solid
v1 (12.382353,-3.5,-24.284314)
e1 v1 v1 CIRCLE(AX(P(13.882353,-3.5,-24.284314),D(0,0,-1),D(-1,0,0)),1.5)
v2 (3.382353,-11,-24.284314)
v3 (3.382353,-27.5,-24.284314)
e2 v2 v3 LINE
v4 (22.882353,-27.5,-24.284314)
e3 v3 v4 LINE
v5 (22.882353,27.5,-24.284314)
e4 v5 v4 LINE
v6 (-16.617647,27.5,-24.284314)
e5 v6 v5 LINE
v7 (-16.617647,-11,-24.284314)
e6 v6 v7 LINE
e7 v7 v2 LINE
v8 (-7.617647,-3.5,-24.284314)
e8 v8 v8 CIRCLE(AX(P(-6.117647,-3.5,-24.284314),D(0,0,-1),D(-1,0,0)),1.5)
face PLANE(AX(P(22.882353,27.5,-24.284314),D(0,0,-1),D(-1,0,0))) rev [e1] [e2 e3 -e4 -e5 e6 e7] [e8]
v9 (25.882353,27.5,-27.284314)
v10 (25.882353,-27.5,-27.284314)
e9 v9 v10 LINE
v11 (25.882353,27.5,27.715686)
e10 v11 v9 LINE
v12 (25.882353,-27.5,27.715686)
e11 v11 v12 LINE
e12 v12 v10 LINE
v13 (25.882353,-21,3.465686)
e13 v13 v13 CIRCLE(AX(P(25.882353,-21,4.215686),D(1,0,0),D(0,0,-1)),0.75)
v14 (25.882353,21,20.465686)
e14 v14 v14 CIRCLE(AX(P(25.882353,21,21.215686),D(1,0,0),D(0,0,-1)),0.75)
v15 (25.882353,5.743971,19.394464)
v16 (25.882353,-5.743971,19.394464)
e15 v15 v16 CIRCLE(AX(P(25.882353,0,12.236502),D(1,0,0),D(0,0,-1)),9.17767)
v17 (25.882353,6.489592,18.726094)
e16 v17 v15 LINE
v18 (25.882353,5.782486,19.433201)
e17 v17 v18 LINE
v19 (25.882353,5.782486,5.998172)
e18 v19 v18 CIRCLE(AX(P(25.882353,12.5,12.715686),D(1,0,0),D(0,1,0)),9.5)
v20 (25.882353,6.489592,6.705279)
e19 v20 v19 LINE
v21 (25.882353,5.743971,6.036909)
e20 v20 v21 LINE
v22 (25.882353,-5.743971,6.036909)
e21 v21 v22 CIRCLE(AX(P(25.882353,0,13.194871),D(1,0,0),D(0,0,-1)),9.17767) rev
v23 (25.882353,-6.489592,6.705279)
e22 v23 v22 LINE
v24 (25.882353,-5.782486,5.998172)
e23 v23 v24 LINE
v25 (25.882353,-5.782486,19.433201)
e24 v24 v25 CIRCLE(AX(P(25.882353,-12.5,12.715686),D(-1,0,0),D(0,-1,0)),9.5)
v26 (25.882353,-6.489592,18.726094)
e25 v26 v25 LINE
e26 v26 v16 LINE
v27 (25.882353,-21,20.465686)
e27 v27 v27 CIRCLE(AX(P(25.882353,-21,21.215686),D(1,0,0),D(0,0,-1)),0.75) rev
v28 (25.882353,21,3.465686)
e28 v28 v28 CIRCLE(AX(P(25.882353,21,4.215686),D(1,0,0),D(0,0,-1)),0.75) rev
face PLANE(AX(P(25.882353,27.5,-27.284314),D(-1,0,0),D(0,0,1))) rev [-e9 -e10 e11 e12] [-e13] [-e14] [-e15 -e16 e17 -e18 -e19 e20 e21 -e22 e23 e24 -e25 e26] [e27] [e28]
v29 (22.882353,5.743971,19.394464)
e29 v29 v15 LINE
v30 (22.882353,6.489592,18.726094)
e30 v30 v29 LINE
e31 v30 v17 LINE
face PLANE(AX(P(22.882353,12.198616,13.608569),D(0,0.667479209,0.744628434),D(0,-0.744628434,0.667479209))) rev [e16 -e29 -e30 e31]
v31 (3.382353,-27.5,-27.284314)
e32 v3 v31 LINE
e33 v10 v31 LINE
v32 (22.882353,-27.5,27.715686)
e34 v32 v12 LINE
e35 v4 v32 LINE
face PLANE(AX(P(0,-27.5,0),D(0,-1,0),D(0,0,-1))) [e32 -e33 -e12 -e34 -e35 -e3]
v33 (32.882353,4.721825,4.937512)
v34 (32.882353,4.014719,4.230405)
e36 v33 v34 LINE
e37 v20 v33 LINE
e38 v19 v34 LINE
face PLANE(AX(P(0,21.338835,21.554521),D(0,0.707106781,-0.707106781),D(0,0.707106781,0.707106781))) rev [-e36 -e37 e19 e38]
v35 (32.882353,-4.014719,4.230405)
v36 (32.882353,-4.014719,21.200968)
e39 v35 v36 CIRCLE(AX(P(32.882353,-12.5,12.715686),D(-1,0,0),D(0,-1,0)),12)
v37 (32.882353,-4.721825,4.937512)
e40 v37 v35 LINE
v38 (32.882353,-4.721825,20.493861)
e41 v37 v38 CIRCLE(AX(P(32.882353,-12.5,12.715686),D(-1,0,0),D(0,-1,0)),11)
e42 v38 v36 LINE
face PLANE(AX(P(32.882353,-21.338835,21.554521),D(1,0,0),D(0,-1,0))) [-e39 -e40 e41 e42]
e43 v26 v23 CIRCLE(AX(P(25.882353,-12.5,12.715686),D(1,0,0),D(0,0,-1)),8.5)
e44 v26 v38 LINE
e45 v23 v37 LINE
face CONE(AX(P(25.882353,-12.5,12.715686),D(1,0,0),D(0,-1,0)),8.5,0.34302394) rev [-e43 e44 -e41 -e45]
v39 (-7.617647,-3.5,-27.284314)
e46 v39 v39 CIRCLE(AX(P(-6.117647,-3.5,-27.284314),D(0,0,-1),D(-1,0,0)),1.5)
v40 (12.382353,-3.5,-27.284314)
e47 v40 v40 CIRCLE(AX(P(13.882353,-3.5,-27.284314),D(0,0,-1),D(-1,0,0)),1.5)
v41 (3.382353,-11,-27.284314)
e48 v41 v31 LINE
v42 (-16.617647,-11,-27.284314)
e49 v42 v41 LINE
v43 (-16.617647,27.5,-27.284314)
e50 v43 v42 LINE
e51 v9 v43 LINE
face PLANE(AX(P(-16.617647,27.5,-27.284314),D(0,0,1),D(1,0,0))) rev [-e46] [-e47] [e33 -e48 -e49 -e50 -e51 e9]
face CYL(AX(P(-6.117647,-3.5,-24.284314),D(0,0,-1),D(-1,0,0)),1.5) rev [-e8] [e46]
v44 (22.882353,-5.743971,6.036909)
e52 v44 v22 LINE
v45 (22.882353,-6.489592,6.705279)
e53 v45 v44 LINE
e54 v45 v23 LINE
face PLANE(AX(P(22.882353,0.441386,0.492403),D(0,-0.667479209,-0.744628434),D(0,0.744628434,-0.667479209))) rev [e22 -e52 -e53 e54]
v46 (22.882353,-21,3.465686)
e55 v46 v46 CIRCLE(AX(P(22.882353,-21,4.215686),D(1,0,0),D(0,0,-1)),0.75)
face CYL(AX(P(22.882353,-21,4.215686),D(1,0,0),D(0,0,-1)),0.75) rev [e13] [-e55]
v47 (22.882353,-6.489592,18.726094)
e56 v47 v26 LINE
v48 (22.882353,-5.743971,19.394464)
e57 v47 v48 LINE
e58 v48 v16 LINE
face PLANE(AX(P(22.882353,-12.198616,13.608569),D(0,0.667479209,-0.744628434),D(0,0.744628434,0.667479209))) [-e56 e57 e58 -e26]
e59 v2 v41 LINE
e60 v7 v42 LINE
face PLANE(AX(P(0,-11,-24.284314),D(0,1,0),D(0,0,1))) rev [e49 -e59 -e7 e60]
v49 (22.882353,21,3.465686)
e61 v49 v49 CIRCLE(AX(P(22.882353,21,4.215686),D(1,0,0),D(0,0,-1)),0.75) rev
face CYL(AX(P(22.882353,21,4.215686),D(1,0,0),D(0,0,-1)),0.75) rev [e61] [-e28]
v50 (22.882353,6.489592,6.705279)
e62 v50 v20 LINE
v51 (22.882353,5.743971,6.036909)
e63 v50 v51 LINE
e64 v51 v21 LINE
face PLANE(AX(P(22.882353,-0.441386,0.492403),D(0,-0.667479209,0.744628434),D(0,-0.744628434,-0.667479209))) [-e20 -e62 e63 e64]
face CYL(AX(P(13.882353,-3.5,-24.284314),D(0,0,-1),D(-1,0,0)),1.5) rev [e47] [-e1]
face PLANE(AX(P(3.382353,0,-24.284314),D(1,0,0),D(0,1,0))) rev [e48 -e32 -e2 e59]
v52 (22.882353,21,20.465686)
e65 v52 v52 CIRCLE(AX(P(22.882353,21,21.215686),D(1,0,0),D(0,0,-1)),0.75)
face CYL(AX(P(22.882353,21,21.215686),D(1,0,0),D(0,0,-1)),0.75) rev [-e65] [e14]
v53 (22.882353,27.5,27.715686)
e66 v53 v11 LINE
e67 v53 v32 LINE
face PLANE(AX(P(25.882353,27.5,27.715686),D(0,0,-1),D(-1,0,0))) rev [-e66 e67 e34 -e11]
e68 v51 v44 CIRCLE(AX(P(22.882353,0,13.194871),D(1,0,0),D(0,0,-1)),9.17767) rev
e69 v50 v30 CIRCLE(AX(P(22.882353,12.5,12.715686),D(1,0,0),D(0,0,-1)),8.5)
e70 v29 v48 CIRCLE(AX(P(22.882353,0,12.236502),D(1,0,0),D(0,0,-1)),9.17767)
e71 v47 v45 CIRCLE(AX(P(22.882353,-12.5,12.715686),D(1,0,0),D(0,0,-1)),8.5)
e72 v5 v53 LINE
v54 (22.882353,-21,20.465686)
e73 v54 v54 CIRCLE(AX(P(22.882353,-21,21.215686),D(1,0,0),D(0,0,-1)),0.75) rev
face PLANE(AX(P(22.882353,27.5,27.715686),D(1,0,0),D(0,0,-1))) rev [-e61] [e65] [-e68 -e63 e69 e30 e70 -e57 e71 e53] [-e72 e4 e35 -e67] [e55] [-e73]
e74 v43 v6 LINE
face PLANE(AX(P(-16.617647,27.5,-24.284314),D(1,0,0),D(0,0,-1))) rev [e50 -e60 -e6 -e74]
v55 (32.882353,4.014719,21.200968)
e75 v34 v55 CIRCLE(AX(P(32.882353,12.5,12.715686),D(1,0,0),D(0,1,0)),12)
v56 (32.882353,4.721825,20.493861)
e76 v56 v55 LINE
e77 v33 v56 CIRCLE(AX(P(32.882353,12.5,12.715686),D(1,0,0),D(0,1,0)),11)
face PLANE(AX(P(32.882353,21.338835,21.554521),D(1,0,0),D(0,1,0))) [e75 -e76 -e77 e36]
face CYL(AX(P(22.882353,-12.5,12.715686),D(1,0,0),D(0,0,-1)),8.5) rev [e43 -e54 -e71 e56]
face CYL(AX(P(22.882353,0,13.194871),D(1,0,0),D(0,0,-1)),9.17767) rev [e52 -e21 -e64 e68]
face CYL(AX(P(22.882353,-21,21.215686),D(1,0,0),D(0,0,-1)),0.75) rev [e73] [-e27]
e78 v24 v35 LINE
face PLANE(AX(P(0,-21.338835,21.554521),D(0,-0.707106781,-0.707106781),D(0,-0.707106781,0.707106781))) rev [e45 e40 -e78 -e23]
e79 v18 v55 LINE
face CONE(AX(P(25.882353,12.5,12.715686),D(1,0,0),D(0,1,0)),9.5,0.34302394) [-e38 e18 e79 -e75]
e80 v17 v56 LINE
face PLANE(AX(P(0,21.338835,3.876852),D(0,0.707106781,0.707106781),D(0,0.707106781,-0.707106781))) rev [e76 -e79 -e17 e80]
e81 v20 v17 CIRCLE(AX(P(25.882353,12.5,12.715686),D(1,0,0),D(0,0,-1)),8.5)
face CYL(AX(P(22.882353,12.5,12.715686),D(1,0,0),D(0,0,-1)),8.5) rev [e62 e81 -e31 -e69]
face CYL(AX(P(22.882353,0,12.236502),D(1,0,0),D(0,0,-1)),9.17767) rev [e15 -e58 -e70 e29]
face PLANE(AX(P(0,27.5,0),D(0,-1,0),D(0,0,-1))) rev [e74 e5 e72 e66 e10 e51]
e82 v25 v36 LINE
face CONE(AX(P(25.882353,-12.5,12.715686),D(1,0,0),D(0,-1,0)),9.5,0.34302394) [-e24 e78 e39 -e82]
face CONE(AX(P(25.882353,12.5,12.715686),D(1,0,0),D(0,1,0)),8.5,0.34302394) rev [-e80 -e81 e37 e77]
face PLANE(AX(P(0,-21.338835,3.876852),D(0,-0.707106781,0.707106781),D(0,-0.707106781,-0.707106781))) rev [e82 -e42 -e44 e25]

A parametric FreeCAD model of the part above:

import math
import FreeCAD as App
import Part
import Sketcher

V = App.Vector

doc = App.newDocument("Part")
params = doc.addObject("Spreadsheet::Sheet", "Params")
for row, (alias, value) in enumerate([
    ("sketch1_width", "3 mm"),
    ("sketch1_height", "52 mm"),
    ("sketch1_width2", "42.5 mm"),
    ("pad1_length", "55 mm"),
    ("sketch2_diameter", "1.5 mm"),
    ("sketch2_radius", "8.5 mm"),
    ("pocket1_length", "3 mm"),
    ("sketch3_width", "7 mm"),
    ("sketch3_height", "1 mm"),
    ("revolution_angle", "135 deg"),
    ("sketch4_width", "7 mm"),
    ("sketch4_height", "1 mm"),
    ("revolution2_angle", "135 deg"),
    ("sketch5_width", "7 mm"),
    ("sketch5_height", "1 mm"),
    ("revolution3_angle", "135 deg"),
    ("sketch6_diameter", "3 mm"),
    ("sketch6_width", "20 mm"),
    ("sketch6_height", "16.5 mm"),
    ("pocket2_length", "3 mm"),
], start=1):
    params.set(f"A{row}", alias)
    params.set(f"B{row}", "=" + value)
    params.setAlias(f"B{row}", alias)

body = doc.addObject("PartDesign::Body", "Body")

# Sketch on XZ plane
sketch1 = doc.addObject("Sketcher::SketchObject", "Sketch")
body.addObject(sketch1)
sketch1.AttachmentSupport = (doc.XZ_Plane, [""])
sketch1.MapMode = "FlatFace"
sketch1.addGeometry([
    Part.LineSegment(V(25.9, -27.3, 0), V(-16.6, -27.3, 0)),  # 0
    Part.LineSegment(V(-16.6, -27.3, 0), V(-16.6, -24.3, 0)),  # 1
    Part.LineSegment(V(-16.6, -24.3, 0), V(22.9, -24.3, 0)),  # 2
    Part.LineSegment(V(22.9, -24.3, 0), V(22.9, 27.7, 0)),  # 3
    Part.LineSegment(V(22.9, 27.7, 0), V(25.9, 27.7, 0)),  # 4
    Part.LineSegment(V(25.9, 27.7, 0), V(25.9, -27.3, 0)),  # 5
], False)
sketch1.addConstraint([
    Sketcher.Constraint("Coincident", 0, 2, 1, 1),
    Sketcher.Constraint("Coincident", 1, 2, 2, 1),
    Sketcher.Constraint("Coincident", 2, 2, 3, 1),
    Sketcher.Constraint("Coincident", 3, 2, 4, 1),
    Sketcher.Constraint("Coincident", 4, 2, 5, 1),
    Sketcher.Constraint("Coincident", 5, 2, 0, 1),
    Sketcher.Constraint("Horizontal", 0),
    Sketcher.Constraint("Vertical", 1),
    Sketcher.Constraint("Horizontal", 2),
    Sketcher.Constraint("Vertical", 3),
    Sketcher.Constraint("Horizontal", 4),
    Sketcher.Constraint("Vertical", 5),
    Sketcher.Constraint("Equal", 4, 1),
    Sketcher.Constraint("DistanceX", 4, 1, 4, 2, 3.0),
    Sketcher.Constraint("DistanceY", 3, 1, 3, 2, 52.0),
    Sketcher.Constraint("DistanceX", 0, 2, 0, 1, 42.5),
    Sketcher.Constraint("DistanceX", 0, 2, -1, 1, 16.617647),
    Sketcher.Constraint("DistanceY", 0, 2, -1, 1, 27.284314),
])
sketch1.setExpression("Constraints[13]", "Params.sketch1_width")
sketch1.setExpression("Constraints[14]", "Params.sketch1_height")
sketch1.setExpression("Constraints[15]", "Params.sketch1_width2")
pad1 = doc.addObject("PartDesign::Pad", "Pad")
body.addObject(pad1)
pad1.Profile = sketch1
pad1.setExpression("Length", "Params.pad1_length")
pad1.Midplane = True

# Sketch on YZ plane
sketch2 = doc.addObject("Sketcher::SketchObject", "Sketch001")
body.addObject(sketch2)
sketch2.AttachmentSupport = (doc.YZ_Plane, [""])
sketch2.MapMode = "FlatFace"
sketch2.AttachmentOffset = App.Placement(V(0, 0, 25.882353), App.Rotation())
sketch2.addGeometry([
    Part.ArcOfCircle(Part.Circle(V(0, 12.2, 0), V(0, 0, 1), 9.2), math.radians(51), math.radians(129)),  # 0
    Part.LineSegment(V(-5.7, 19.4, 0), V(-6.5, 18.7, 0)),  # 1
    Part.ArcOfCircle(Part.Circle(V(-12.5, 12.7, 0), V(0, 0, 1), 8.5), math.radians(45), math.radians(315)),  # 2
    Part.LineSegment(V(-6.5, 6.7, 0), V(-5.7, 6, 0)),  # 3
    Part.ArcOfCircle(Part.Circle(V(0, 13.2, 0), V(0, 0, 1), 9.2), math.radians(-129), math.radians(-51)),  # 4
    Part.LineSegment(V(5.7, 6, 0), V(6.5, 6.7, 0)),  # 5
    Part.ArcOfCircle(Part.Circle(V(12.5, 12.7, 0), V(0, 0, 1), 8.5), math.radians(-135), math.radians(135)),  # 6
    Part.LineSegment(V(6.5, 18.7, 0), V(5.7, 19.4, 0)),  # 7
    Part.Circle(V(-21, 4.2, 0), V(0, 0, 1), 0.8),  # 8
    Part.Circle(V(-21, 21.2, 0), V(0, 0, 1), 0.8),  # 9
    Part.Circle(V(21, 4.2, 0), V(0, 0, 1), 0.8),  # 10
    Part.Circle(V(21, 21.2, 0), V(0, 0, 1), 0.8),  # 11
], False)
sketch2.addConstraint([
    Sketcher.Constraint("Coincident", 0, 2, 1, 1),
    Sketcher.Constraint("Coincident", 1, 2, 2, 1),
    Sketcher.Constraint("Coincident", 2, 2, 3, 1),
    Sketcher.Constraint("Coincident", 3, 2, 4, 1),
    Sketcher.Constraint("Coincident", 4, 2, 5, 1),
    Sketcher.Constraint("Coincident", 5, 2, 6, 1),
    Sketcher.Constraint("Coincident", 6, 2, 7, 1),
    Sketcher.Constraint("Coincident", 7, 2, 0, 1),
    Sketcher.Constraint("Equal", 0, 4),
    Sketcher.Constraint("Equal", 2, 6),
    Sketcher.Constraint("Equal", 8, 9),
    Sketcher.Constraint("Equal", 9, 10),
    Sketcher.Constraint("Equal", 10, 11),
    Sketcher.Constraint("Symmetric", 2, 3, 6, 3, -2),
    Sketcher.Constraint("Symmetric", 8, 3, 10, 3, -2),
    Sketcher.Constraint("Symmetric", 9, 3, 11, 3, -2),
    Sketcher.Constraint("Symmetric", 3, 2, 4, 2, -2),
    Sketcher.Constraint("Symmetric", 0, 2, 7, 2, -2),
    Sketcher.Constraint("Parallel", 1, 5),
    Sketcher.Constraint("Parallel", 3, 7),
    Sketcher.Constraint("Horizontal", 2, 2, 5, 2),
    Sketcher.Constraint("Vertical", 8, 3, 9, 3),
    Sketcher.Constraint("Vertical", 1, 2, 2, 2),
    Sketcher.Constraint("Vertical", 0, 2, 3, 2),
    Sketcher.Constraint("Diameter", 8, 1.5),
    Sketcher.Constraint("Radius", 2, 8.5),
    Sketcher.Constraint("DistanceX", 8, 3, -1, 1, 21.0),
    Sketcher.Constraint("DistanceX", 2, 3, 6, 3, 25.0),
    Sketcher.Constraint("DistanceY", 8, 3, 9, 3, 17.0),
    Sketcher.Constraint("DistanceY", 8, 3, 2, 3, 8.5),
    Sketcher.Constraint("Radius", 0, 9.17767),
    Sketcher.Constraint("DistanceY", -1, 1, 0, 3, 12.236502),
    Sketcher.Constraint("DistanceY", -1, 1, 4, 3, 13.194871),
    Sketcher.Constraint("DistanceX", 0, 2, -1, 1, 5.743971),
    Sketcher.Constraint("DistanceY", -1, 1, 2, 2, 6.705279),
])
sketch2.setExpression("Constraints[24]", "Params.sketch2_diameter")
sketch2.setExpression("Constraints[25]", "Params.sketch2_radius")
pocket1 = doc.addObject("PartDesign::Pocket", "Pocket")
body.addObject(pocket1)
pocket1.Profile = sketch2
pocket1.setExpression("Length", "Params.pocket1_length")

# Sketch on XY plane
sketch3 = doc.addObject("Sketcher::SketchObject", "Sketch002")
body.addObject(sketch3)
sketch3.AttachmentSupport = (doc.XY_Plane, [""])
sketch3.MapMode = "FlatFace"
sketch3.AttachmentOffset = App.Placement(V(0, 0, 12.715686), App.Rotation())
sketch3.addGeometry([
    Part.LineSegment(V(32.9, 24.5, 0), V(25.9, 22, 0)),
    Part.LineSegment(V(25.9, 22, 0), V(25.9, 21, 0)),
    Part.LineSegment(V(25.9, 21, 0), V(32.9, 23.5, 0)),
    Part.LineSegment(V(32.9, 23.5, 0), V(32.9, 24.5, 0)),
], False)
sketch3.addGeometry(Part.LineSegment(V(32.9, 12.5, 0), V(25.9, 12.5, 0)), True)  # axis
sketch3.addConstraint([
    Sketcher.Constraint("Coincident", 0, 2, 1, 1),
    Sketcher.Constraint("Coincident", 1, 2, 2, 1),
    Sketcher.Constraint("Coincident", 2, 2, 3, 1),
    Sketcher.Constraint("Coincident", 3, 2, 0, 1),
    Sketcher.Constraint("Vertical", 1),
    Sketcher.Constraint("Vertical", 3),
    Sketcher.Constraint("Horizontal", 4),
    Sketcher.Constraint("Parallel", 0, 2),
    Sketcher.Constraint("Vertical", 3, 2, 4, 1),
    Sketcher.Constraint("Vertical", 1, 2, 4, 2),
    Sketcher.Constraint("DistanceX", 4, 2, 4, 1, 7.0),
    Sketcher.Constraint("DistanceY", 1, 2, 1, 1, 1.0),
    Sketcher.Constraint("DistanceY", -1, 1, 0, 2, 22.0),
    Sketcher.Constraint("DistanceY", 4, 1, 2, 2, 11.0),
    Sketcher.Constraint("DistanceY", -1, 1, 2, 2, 23.5),
    Sketcher.Constraint("DistanceX", -1, 1, 0, 2, 25.882353),
])
sketch3.setExpression("Constraints[10]", "Params.sketch3_width")
sketch3.setExpression("Constraints[11]", "Params.sketch3_height")
revolution = doc.addObject("PartDesign::Revolution", "Revolution")
body.addObject(revolution)
revolution.Profile = sketch3
revolution.ReferenceAxis = (sketch3, ["Axis0"])
revolution.setExpression("Angle", "Params.revolution_angle")
doc.recompute()

mirrored = doc.addObject("PartDesign::Mirrored", "Mirrored")
body.addObject(mirrored)
mirrored.Originals = [revolution]
mirrored.MirrorPlane = (doc.XZ_Plane, [""])
body.Tip = mirrored
doc.recompute()

datumplane = doc.addObject("PartDesign::Plane", "DatumPlane")
body.addObject(datumplane)
datumplane.AttachmentSupport = (doc.XY_Plane, [""])
datumplane.MapMode = "FlatFace"
datumplane.AttachmentOffset = App.Placement(V(0, 0, 12.715686), App.Rotation())
mirrored2 = doc.addObject("PartDesign::Mirrored", "Mirrored001")
body.addObject(mirrored2)
mirrored2.Originals = [revolution]
mirrored2.MirrorPlane = (datumplane, [""])
body.Tip = mirrored2

# Sketch on XY plane
sketch4 = doc.addObject("Sketcher::SketchObject", "Sketch003")
body.addObject(sketch4)
sketch4.AttachmentSupport = (doc.XY_Plane, [""])
sketch4.MapMode = "FlatFace"
sketch4.AttachmentOffset = App.Placement(V(0, 0, 12.715686), App.Rotation())
sketch4.addGeometry([
    Part.LineSegment(V(32.9, -24.5, 0), V(25.9, -22, 0)),
    Part.LineSegment(V(25.9, -22, 0), V(25.9, -21, 0)),
    Part.LineSegment(V(25.9, -21, 0), V(32.9, -23.5, 0)),
    Part.LineSegment(V(32.9, -23.5, 0), V(32.9, -24.5, 0)),
], False)
sketch4.addGeometry(Part.LineSegment(V(32.9, -12.5, 0), V(25.9, -12.5, 0)), True)  # axis
sketch4.addConstraint([
    Sketcher.Constraint("Coincident", 0, 2, 1, 1),
    Sketcher.Constraint("Coincident", 1, 2, 2, 1),
    Sketcher.Constraint("Coincident", 2, 2, 3, 1),
    Sketcher.Constraint("Coincident", 3, 2, 0, 1),
    Sketcher.Constraint("Vertical", 1),
    Sketcher.Constraint("Vertical", 3),
    Sketcher.Constraint("Horizontal", 4),
    Sketcher.Constraint("Parallel", 0, 2),
    Sketcher.Constraint("Vertical", 3, 2, 4, 1),
    Sketcher.Constraint("Vertical", 1, 2, 4, 2),
    Sketcher.Constraint("DistanceX", 4, 2, 4, 1, 7.0),
    Sketcher.Constraint("DistanceY", 1, 1, 1, 2, 1.0),
    Sketcher.Constraint("DistanceY", 0, 2, -1, 1, 22.0),
    Sketcher.Constraint("DistanceY", 2, 2, 4, 1, 11.0),
    Sketcher.Constraint("DistanceY", 2, 2, -1, 1, 23.5),
    Sketcher.Constraint("DistanceX", -1, 1, 0, 2, 25.882353),
])
sketch4.setExpression("Constraints[10]", "Params.sketch4_width")
sketch4.setExpression("Constraints[11]", "Params.sketch4_height")
revolution2 = doc.addObject("PartDesign::Revolution", "Revolution001")
body.addObject(revolution2)
revolution2.Profile = sketch4
revolution2.ReferenceAxis = (sketch4, ["Axis0"])
revolution2.setExpression("Angle", "Params.revolution2_angle")

# Sketch on XY plane
sketch5 = doc.addObject("Sketcher::SketchObject", "Sketch004")
body.addObject(sketch5)
sketch5.AttachmentSupport = (doc.XY_Plane, [""])
sketch5.MapMode = "FlatFace"
sketch5.AttachmentOffset = App.Placement(V(0, 0, 12.715686), App.Rotation())
sketch5.addGeometry([
    Part.LineSegment(V(25.9, 22, 0), V(32.9, 24.5, 0)),
    Part.LineSegment(V(32.9, 24.5, 0), V(32.9, 23.5, 0)),
    Part.LineSegment(V(32.9, 23.5, 0), V(25.9, 21, 0)),
    Part.LineSegment(V(25.9, 21, 0), V(25.9, 22, 0)),
], False)
sketch5.addGeometry(Part.LineSegment(V(25.9, 12.5, 0), V(32.9, 12.5, 0)), True)  # axis
sketch5.addConstraint([
    Sketcher.Constraint("Coincident", 0, 2, 1, 1),
    Sketcher.Constraint("Coincident", 1, 2, 2, 1),
    Sketcher.Constraint("Coincident", 2, 2, 3, 1),
    Sketcher.Constraint("Coincident", 3, 2, 0, 1),
    Sketcher.Constraint("Vertical", 1),
    Sketcher.Constraint("Vertical", 3),
    Sketcher.Constraint("Horizontal", 4),
    Sketcher.Constraint("Parallel", 0, 2),
    Sketcher.Constraint("Vertical", 3, 2, 4, 1),
    Sketcher.Constraint("Vertical", 1, 2, 4, 2),
    Sketcher.Constraint("DistanceX", 4, 1, 4, 2, 7.0),
    Sketcher.Constraint("DistanceY", 1, 2, 1, 1, 1.0),
    Sketcher.Constraint("DistanceY", -1, 1, 2, 2, 21.0),
    Sketcher.Constraint("DistanceY", 4, 1, 1, 2, 11.0),
    Sketcher.Constraint("DistanceY", -1, 1, 0, 2, 24.5),
    Sketcher.Constraint("DistanceX", -1, 1, 0, 2, 32.882353),
])
sketch5.setExpression("Constraints[10]", "Params.sketch5_width")
sketch5.setExpression("Constraints[11]", "Params.sketch5_height")
revolution3 = doc.addObject("PartDesign::Revolution", "Revolution002")
body.addObject(revolution3)
revolution3.Profile = sketch5
revolution3.ReferenceAxis = (sketch5, ["Axis0"])
revolution3.setExpression("Angle", "Params.revolution3_angle")

# Sketch on XY plane
sketch6 = doc.addObject("Sketcher::SketchObject", "Sketch005")
body.addObject(sketch6)
sketch6.AttachmentSupport = (doc.XY_Plane, [""])
sketch6.MapMode = "FlatFace"
sketch6.AttachmentOffset = App.Placement(V(0, 0, -27.284314), App.Rotation())
sketch6.addGeometry([
    Part.Circle(V(-6.1, -3.5, 0), V(0, 0, 1), 1.5),  # 0
    Part.Circle(V(13.9, -3.5, 0), V(0, 0, 1), 1.5),  # 1
    Part.LineSegment(V(3.4, -11, 0), V(3.4, -27.5, 0)),  # 2
    Part.LineSegment(V(3.4, -27.5, 0), V(-16.6, -27.5, 0)),  # 3
    Part.LineSegment(V(-16.6, -27.5, 0), V(-16.6, -11, 0)),  # 4
    Part.LineSegment(V(-16.6, -11, 0), V(3.4, -11, 0)),  # 5
], False)
sketch6.addConstraint([
    Sketcher.Constraint("Coincident", 2, 2, 3, 1),
    Sketcher.Constraint("Coincident", 3, 2, 4, 1),
    Sketcher.Constraint("Coincident", 4, 2, 5, 1),
    Sketcher.Constraint("Coincident", 5, 2, 2, 1),
    Sketcher.Constraint("Vertical", 2),
    Sketcher.Constraint("Horizontal", 3),
    Sketcher.Constraint("Vertical", 4),
    Sketcher.Constraint("Horizontal", 5),
    Sketcher.Constraint("Equal", 0, 1),
    Sketcher.Constraint("Horizontal", 0, 3, 1, 3),
    Sketcher.Constraint("Diameter", 0, 3.0),
    Sketcher.Constraint("DistanceX", 3, 2, 3, 1, 20.0),
    Sketcher.Constraint("DistanceY", 2, 2, 2, 1, 16.5),
    Sketcher.Constraint("DistanceY", 4, 2, -1, 1, 11.0),
    Sketcher.Constraint("DistanceX", 0, 3, 1, 3, 20.0),
    Sketcher.Constraint("DistanceY", 2, 2, 0, 3, 24.0),
    Sketcher.Constraint("DistanceX", 0, 3, 2, 2, 9.5),
    Sketcher.Constraint("DistanceX", 0, 3, -1, 1, 6.117647),
])
sketch6.setExpression("Constraints[10]", "Params.sketch6_diameter")
sketch6.setExpression("Constraints[11]", "Params.sketch6_width")
sketch6.setExpression("Constraints[12]", "Params.sketch6_height")
pocket2 = doc.addObject("PartDesign::Pocket", "Pocket001")
body.addObject(pocket2)
pocket2.Profile = sketch6
pocket2.setExpression("Length", "Params.pocket2_length")
pocket2.Reversed = True

doc.recompute()
